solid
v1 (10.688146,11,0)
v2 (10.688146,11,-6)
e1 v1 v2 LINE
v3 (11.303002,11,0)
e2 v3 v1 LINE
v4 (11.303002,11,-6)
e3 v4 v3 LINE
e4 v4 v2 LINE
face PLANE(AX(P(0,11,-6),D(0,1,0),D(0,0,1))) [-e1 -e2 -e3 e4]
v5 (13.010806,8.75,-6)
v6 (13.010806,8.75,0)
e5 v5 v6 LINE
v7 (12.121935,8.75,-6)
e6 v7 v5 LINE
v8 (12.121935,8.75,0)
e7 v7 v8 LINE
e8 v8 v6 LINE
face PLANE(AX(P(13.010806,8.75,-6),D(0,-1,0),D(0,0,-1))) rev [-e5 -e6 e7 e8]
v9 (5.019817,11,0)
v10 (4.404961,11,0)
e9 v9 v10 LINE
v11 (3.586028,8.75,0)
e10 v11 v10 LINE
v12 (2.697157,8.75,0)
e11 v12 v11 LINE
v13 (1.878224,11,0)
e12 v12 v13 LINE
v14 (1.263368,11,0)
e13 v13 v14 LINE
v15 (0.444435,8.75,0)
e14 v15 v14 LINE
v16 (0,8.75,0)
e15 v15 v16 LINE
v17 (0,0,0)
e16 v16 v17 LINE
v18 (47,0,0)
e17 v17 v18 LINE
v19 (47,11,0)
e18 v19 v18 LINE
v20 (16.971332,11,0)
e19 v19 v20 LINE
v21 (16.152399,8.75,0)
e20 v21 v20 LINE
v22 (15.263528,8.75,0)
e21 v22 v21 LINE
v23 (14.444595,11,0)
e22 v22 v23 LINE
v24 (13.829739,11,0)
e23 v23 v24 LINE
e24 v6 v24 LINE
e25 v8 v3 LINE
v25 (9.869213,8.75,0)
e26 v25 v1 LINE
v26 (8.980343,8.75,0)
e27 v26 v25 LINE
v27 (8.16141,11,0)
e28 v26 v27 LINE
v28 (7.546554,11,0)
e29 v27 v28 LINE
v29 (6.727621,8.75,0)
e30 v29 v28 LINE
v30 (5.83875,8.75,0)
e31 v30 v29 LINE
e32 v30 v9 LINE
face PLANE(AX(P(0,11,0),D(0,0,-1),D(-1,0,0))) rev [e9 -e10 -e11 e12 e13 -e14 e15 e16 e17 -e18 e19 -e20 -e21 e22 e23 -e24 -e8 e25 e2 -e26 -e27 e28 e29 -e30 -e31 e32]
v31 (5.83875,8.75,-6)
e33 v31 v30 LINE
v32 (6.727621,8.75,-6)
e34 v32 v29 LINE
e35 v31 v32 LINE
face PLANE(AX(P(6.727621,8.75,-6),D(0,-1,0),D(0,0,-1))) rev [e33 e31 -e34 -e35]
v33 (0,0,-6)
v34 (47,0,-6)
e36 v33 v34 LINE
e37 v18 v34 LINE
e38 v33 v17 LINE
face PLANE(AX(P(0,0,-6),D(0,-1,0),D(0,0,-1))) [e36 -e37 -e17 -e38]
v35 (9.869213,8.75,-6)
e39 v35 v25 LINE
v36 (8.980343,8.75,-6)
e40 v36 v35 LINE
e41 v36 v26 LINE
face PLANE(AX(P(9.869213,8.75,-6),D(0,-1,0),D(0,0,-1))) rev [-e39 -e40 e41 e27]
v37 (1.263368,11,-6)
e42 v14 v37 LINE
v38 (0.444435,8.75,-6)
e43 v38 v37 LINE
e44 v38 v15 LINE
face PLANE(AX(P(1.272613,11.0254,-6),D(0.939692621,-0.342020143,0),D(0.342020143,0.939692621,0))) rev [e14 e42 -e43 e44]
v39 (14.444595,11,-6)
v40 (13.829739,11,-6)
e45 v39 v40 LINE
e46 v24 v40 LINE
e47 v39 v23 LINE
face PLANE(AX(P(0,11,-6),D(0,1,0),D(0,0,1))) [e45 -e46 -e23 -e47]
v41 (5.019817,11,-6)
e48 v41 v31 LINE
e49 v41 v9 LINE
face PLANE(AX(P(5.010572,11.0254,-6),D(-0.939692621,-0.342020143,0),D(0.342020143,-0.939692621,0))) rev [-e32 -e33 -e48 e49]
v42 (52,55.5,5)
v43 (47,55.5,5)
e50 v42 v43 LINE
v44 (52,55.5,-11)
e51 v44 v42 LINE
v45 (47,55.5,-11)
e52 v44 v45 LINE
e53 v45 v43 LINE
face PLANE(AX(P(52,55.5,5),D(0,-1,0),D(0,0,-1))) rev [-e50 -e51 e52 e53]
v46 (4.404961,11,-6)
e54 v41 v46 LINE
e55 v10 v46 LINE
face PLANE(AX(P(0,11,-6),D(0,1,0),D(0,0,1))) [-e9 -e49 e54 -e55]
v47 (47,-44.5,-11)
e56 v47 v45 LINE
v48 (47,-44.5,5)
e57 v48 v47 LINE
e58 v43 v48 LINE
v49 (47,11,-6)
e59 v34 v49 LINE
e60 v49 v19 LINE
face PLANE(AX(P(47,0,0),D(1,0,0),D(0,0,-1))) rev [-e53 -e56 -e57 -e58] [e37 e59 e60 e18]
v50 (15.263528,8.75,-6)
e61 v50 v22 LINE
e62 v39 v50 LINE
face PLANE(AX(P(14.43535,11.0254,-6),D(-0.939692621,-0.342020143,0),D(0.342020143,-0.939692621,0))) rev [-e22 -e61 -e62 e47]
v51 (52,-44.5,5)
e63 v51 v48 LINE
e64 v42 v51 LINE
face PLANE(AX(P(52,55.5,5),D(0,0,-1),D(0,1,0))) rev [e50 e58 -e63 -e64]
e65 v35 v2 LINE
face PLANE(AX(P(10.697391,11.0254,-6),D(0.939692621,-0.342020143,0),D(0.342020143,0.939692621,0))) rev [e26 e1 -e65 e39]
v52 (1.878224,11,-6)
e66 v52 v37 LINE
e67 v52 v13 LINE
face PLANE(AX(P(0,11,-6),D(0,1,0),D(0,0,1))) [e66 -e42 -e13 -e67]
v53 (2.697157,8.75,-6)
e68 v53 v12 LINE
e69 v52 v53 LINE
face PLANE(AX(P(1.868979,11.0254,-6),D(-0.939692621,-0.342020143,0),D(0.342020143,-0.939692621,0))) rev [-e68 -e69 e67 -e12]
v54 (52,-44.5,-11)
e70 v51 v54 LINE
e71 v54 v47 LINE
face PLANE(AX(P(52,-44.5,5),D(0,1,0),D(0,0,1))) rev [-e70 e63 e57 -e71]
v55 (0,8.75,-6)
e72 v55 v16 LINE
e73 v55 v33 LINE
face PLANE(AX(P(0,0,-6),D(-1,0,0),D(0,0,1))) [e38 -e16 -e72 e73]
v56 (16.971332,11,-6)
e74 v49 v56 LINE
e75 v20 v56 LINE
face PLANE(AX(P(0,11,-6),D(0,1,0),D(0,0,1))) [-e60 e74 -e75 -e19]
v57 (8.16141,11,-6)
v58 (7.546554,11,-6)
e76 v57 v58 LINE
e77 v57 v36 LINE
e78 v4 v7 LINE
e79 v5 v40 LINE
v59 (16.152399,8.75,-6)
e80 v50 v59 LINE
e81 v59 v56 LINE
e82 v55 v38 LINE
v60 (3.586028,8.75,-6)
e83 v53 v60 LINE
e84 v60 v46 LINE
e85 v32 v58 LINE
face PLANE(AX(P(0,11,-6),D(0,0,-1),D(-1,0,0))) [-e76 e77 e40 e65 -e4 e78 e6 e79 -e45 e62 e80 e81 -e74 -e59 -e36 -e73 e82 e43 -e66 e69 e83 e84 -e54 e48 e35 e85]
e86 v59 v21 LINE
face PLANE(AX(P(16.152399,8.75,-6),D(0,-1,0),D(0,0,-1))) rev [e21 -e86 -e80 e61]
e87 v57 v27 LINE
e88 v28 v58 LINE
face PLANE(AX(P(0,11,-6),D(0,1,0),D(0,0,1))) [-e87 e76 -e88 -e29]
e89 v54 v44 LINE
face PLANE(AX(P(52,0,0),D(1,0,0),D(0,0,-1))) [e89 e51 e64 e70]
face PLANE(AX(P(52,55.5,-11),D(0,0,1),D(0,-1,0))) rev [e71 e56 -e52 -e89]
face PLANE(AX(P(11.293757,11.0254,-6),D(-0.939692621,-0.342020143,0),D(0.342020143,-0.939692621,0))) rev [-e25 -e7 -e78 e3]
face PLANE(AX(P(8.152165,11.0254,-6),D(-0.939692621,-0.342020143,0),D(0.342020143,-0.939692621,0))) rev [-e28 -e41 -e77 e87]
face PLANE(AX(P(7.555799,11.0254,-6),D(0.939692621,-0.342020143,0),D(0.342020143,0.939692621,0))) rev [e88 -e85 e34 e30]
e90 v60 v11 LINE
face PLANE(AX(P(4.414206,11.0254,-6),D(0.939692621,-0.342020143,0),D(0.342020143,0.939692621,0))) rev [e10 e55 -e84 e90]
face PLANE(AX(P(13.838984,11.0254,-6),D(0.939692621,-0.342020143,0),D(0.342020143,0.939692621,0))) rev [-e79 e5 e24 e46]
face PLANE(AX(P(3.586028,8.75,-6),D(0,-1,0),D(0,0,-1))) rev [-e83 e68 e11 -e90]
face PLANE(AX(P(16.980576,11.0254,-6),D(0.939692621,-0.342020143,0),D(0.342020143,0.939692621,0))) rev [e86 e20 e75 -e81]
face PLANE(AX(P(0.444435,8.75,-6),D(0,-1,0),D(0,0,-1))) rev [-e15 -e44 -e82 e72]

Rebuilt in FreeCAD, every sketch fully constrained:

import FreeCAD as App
import Part
import Sketcher

V = App.Vector
Q = App.Units.Quantity


def add_polygon(sketch, points):
    """Adds a closed chain of lines whose ends are joined by coincident constraints."""
    first, n = sketch.GeometryCount, len(points)
    for a, b in zip(points, points[1:] + points[:1]):
        sketch.addGeometry(Part.LineSegment(App.Vector(*a, 0), App.Vector(*b, 0)), False)
    for i in range(n):
        sketch.addConstraint(Sketcher.Constraint("Coincident", first + i, 2, first + (i + 1) % n, 1))

doc = App.newDocument("Part")
params = doc.addObject("Spreadsheet::Sheet", "Params")
for row, (alias, value) in enumerate([
    ("sketch1_width", "17 mm"),
    ("sketch1_height", "11 mm"),
    ("pad1_length", "6 mm"),
    ("linearpattern_pitch", "3.141593 mm"),
    ("sketch3_width", "11 mm"),
    ("sketch3_height", "6 mm"),
    ("pad2_length", "30 mm"),
    ("sketch4_width", "100 mm"),
    ("sketch4_height", "16 mm"),
    ("pad3_length", "5 mm"),
], start=1):
    params.set(f"A{row}", alias)
    params.set(f"B{row}", "=" + value)
    params.setAlias(f"B{row}", alias)

body = doc.addObject("PartDesign::Body", "Body")

sketch1 = doc.addObject("Sketcher::SketchObject", "Sketch")
body.addObject(sketch1)
sketch1.AttachmentSupport = (doc.XY_Plane, [""])
sketch1.MapMode = "FlatFace"
add_polygon(sketch1, [(0, 11), (0, 0), (17, 0), (17, 11)])
sketch1.addConstraint([
    Sketcher.Constraint("Vertical", 0),
    Sketcher.Constraint("Horizontal", 1),
    Sketcher.Constraint("Vertical", 2),
    Sketcher.Constraint("Horizontal", 3),
    Sketcher.Constraint("Coincident", 0, 2, -1, 1),
    Sketcher.Constraint("DistanceX", 1, 1, 1, 2, 17.0),
    Sketcher.Constraint("DistanceY", 0, 2, 0, 1, 11.0),
])
sketch1.setExpression("Constraints[9]", "Params.sketch1_width")
sketch1.setExpression("Constraints[10]", "Params.sketch1_height")
pad1 = doc.addObject("PartDesign::Pad", "Pad")
body.addObject(pad1)
pad1.Profile = sketch1
pad1.setExpression("Length", "Params.pad1_length")
pad1.Reversed = True

sketch2 = doc.addObject("Sketcher::SketchObject", "Sketch001")
body.addObject(sketch2)
sketch2.AttachmentSupport = (doc.XY_Plane, [""])
sketch2.MapMode = "FlatFace"
add_polygon(sketch2, [(-0.4, 8.8), (0.4, 8.8), (1.3, 11), (-1.3, 11)])
sketch2.addConstraint([
    Sketcher.Constraint("Horizontal", 0),
    Sketcher.Constraint("Horizontal", 2),
    Sketcher.Constraint("Equal", 1, 3),
    Sketcher.Constraint("Angle", 1, Q("70 deg")),
    Sketcher.Constraint("DistanceY", -1, 1, 0, 2, 8.75),
    Sketcher.Constraint("DistanceX", 0, 1, 0, 2, 0.888871),
    Sketcher.Constraint("DistanceY", -1, 1, 1, 2, 11.0254),
    Sketcher.Constraint("DistanceX", -1, 1, 0, 2, 0.444435),
])
pocket1 = doc.addObject("PartDesign::Pocket", "Pocket")
body.addObject(pocket1)
pocket1.Profile = sketch2
pocket1.Type = "ThroughAll"
doc.recompute()

linearpattern = doc.addObject("PartDesign::LinearPattern", "LinearPattern")
body.addObject(linearpattern)
linearpattern.Originals = [pocket1]
linearpattern.Direction = (doc.X_Axis, [""])
linearpattern.Mode = "offset"
linearpattern.setExpression("Offset", "Params.linearpattern_pitch")
linearpattern.Occurrences = 6
body.Tip = linearpattern

sketch3 = doc.addObject("Sketcher::SketchObject", "Sketch002")
body.addObject(sketch3)
sketch3.AttachmentSupport = (doc.YZ_Plane, [""])
sketch3.MapMode = "FlatFace"
sketch3.AttachmentOffset = App.Placement(V(0, 0, 17), App.Rotation())
add_polygon(sketch3, [(11, 0), (0, 0), (0, -6), (11, -6)])
sketch3.addConstraint([
    Sketcher.Constraint("Horizontal", 0),
    Sketcher.Constraint("Vertical", 1),
    Sketcher.Constraint("Horizontal", 2),
    Sketcher.Constraint("Vertical", 3),
    Sketcher.Constraint("Coincident", 0, 2, -1, 1),
    Sketcher.Constraint("DistanceX", 0, 2, 0, 1, 11.0),
    Sketcher.Constraint("DistanceY", 1, 2, 1, 1, 6.0),
])
sketch3.setExpression("Constraints[9]", "Params.sketch3_width")
sketch3.setExpression("Constraints[10]", "Params.sketch3_height")
pad2 = doc.addObject("PartDesign::Pad", "Pad001")
body.addObject(pad2)
pad2.Profile = sketch3
pad2.setExpression("Length", "Params.pad2_length")

sketch4 = doc.addObject("Sketcher::SketchObject", "Sketch003")
body.addObject(sketch4)
sketch4.AttachmentSupport = (doc.YZ_Plane, [""])
sketch4.MapMode = "FlatFace"
sketch4.AttachmentOffset = App.Placement(V(0, 0, 47), App.Rotation())
add_polygon(sketch4, [(56, 5), (-44, 5), (-44, -11), (56, -11)])
sketch4.addConstraint([
    Sketcher.Constraint("Horizontal", 0),
    Sketcher.Constraint("Vertical", 1),
    Sketcher.Constraint("Horizontal", 2),
    Sketcher.Constraint("Vertical", 3),
    Sketcher.Constraint("DistanceX", 0, 2, 0, 1, 100.0),
    Sketcher.Constraint("DistanceY", 1, 2, 1, 1, 16.0),
    Sketcher.Constraint("DistanceY", -1, 1, 0, 2, 5.0),
    Sketcher.Constraint("DistanceX", 0, 2, -1, 1, 44.5),
])
sketch4.setExpression("Constraints[8]", "Params.sketch4_width")
sketch4.setExpression("Constraints[9]", "Params.sketch4_height")
pad3 = doc.addObject("PartDesign::Pad", "Pad002")
body.addObject(pad3)
pad3.Profile = sketch4
pad3.setExpression("Length", "Params.pad3_length")

doc.recompute()
